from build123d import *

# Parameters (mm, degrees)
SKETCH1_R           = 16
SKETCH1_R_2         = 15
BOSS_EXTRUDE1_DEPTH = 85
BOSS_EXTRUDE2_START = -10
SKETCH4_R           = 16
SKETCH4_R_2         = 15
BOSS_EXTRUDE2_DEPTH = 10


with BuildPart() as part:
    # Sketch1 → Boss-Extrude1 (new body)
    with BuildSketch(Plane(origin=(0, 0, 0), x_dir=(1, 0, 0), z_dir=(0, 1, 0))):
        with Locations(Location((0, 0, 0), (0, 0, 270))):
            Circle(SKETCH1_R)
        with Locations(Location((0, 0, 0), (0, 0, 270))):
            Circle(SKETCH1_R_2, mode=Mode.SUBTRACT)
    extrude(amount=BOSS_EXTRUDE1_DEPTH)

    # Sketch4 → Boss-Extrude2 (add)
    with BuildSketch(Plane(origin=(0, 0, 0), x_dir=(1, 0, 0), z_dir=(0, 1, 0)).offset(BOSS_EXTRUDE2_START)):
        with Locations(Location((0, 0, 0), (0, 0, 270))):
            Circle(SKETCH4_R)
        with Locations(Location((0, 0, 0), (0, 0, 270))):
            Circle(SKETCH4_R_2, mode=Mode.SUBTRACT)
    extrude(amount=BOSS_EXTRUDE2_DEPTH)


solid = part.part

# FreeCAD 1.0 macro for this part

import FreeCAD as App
import Part
import Sketcher

V = App.Vector
Q = App.Units.Quantity

doc = App.newDocument("Part")
params = doc.addObject("Spreadsheet::Sheet", "Params")
for row, (alias, value) in enumerate([
    ("sketch1_diameter", "32 mm"),
    ("sketch1_diameter2", "30 mm"),
    ("pad1_length", "85 mm"),
    ("sketch2_diameter", "32 mm"),
    ("sketch2_diameter2", "30 mm"),
    ("pad2_length", "10 mm"),
], start=1):
    params.set(f"A{row}", alias)
    params.set(f"B{row}", "=" + value)
    params.setAlias(f"B{row}", alias)

body = doc.addObject("PartDesign::Body", "Body")

# Sketch on XZ plane
sketch1 = doc.addObject("Sketcher::SketchObject", "Sketch")
body.addObject(sketch1)
sketch1.AttachmentSupport = (doc.XZ_Plane, [""])
sketch1.MapMode = "FlatFace"
sketch1.addGeometry(Part.Circle(V(0, 0, 0), V(0, 0, 1), 16), False)
sketch1.addGeometry(Part.Circle(V(0, 0, 0), V(0, 0, 1), 15), False)
sketch1.addConstraint(Sketcher.Constraint("Coincident", 0, 3, -1, 1))
sketch1.addConstraint(Sketcher.Constraint("Coincident", 1, 3, -1, 1))
sketch1.addConstraint(Sketcher.Constraint("Diameter", 0, Q("32 mm")))
sketch1.addConstraint(Sketcher.Constraint("Diameter", 1, Q("30 mm")))
sketch1.setExpression("Constraints[2]", "Params.sketch1_diameter")
sketch1.setExpression("Constraints[3]", "Params.sketch1_diameter2")
pad1 = doc.addObject("PartDesign::Pad", "Pad")
body.addObject(pad1)
pad1.Profile = sketch1
pad1.setExpression("Length", "Params.pad1_length")
pad1.Reversed = True

# Sketch on XZ plane
sketch2 = doc.addObject("Sketcher::SketchObject", "Sketch001")
body.addObject(sketch2)
sketch2.AttachmentSupport = (doc.XZ_Plane, [""])
sketch2.MapMode = "FlatFace"
sketch2.AttachmentOffset = App.Placement(V(0, 0, 10), App.Rotation())
sketch2.addGeometry(Part.Circle(V(0, 0, 0), V(0, 0, 1), 16), False)
sketch2.addGeometry(Part.Circle(V(0, 0, 0), V(0, 0, 1), 15), False)
sketch2.addConstraint(Sketcher.Constraint("Coincident", 0, 3, -1, 1))
sketch2.addConstraint(Sketcher.Constraint("Coincident", 1, 3, -1, 1))
sketch2.addConstraint(Sketcher.Constraint("Diameter", 0, Q("32 mm")))
sketch2.addConstraint(Sketcher.Constraint("Diameter", 1, Q("30 mm")))
sketch2.setExpression("Constraints[2]", "Params.sketch2_diameter")
sketch2.setExpression("Constraints[3]", "Params.sketch2_diameter2")
pad2 = doc.addObject("PartDesign::Pad", "Pad001")
body.addObject(pad2)
pad2.Profile = sketch2
pad2.setExpression("Length", "Params.pad2_length")
pad2.Reversed = True

doc.recompute()
